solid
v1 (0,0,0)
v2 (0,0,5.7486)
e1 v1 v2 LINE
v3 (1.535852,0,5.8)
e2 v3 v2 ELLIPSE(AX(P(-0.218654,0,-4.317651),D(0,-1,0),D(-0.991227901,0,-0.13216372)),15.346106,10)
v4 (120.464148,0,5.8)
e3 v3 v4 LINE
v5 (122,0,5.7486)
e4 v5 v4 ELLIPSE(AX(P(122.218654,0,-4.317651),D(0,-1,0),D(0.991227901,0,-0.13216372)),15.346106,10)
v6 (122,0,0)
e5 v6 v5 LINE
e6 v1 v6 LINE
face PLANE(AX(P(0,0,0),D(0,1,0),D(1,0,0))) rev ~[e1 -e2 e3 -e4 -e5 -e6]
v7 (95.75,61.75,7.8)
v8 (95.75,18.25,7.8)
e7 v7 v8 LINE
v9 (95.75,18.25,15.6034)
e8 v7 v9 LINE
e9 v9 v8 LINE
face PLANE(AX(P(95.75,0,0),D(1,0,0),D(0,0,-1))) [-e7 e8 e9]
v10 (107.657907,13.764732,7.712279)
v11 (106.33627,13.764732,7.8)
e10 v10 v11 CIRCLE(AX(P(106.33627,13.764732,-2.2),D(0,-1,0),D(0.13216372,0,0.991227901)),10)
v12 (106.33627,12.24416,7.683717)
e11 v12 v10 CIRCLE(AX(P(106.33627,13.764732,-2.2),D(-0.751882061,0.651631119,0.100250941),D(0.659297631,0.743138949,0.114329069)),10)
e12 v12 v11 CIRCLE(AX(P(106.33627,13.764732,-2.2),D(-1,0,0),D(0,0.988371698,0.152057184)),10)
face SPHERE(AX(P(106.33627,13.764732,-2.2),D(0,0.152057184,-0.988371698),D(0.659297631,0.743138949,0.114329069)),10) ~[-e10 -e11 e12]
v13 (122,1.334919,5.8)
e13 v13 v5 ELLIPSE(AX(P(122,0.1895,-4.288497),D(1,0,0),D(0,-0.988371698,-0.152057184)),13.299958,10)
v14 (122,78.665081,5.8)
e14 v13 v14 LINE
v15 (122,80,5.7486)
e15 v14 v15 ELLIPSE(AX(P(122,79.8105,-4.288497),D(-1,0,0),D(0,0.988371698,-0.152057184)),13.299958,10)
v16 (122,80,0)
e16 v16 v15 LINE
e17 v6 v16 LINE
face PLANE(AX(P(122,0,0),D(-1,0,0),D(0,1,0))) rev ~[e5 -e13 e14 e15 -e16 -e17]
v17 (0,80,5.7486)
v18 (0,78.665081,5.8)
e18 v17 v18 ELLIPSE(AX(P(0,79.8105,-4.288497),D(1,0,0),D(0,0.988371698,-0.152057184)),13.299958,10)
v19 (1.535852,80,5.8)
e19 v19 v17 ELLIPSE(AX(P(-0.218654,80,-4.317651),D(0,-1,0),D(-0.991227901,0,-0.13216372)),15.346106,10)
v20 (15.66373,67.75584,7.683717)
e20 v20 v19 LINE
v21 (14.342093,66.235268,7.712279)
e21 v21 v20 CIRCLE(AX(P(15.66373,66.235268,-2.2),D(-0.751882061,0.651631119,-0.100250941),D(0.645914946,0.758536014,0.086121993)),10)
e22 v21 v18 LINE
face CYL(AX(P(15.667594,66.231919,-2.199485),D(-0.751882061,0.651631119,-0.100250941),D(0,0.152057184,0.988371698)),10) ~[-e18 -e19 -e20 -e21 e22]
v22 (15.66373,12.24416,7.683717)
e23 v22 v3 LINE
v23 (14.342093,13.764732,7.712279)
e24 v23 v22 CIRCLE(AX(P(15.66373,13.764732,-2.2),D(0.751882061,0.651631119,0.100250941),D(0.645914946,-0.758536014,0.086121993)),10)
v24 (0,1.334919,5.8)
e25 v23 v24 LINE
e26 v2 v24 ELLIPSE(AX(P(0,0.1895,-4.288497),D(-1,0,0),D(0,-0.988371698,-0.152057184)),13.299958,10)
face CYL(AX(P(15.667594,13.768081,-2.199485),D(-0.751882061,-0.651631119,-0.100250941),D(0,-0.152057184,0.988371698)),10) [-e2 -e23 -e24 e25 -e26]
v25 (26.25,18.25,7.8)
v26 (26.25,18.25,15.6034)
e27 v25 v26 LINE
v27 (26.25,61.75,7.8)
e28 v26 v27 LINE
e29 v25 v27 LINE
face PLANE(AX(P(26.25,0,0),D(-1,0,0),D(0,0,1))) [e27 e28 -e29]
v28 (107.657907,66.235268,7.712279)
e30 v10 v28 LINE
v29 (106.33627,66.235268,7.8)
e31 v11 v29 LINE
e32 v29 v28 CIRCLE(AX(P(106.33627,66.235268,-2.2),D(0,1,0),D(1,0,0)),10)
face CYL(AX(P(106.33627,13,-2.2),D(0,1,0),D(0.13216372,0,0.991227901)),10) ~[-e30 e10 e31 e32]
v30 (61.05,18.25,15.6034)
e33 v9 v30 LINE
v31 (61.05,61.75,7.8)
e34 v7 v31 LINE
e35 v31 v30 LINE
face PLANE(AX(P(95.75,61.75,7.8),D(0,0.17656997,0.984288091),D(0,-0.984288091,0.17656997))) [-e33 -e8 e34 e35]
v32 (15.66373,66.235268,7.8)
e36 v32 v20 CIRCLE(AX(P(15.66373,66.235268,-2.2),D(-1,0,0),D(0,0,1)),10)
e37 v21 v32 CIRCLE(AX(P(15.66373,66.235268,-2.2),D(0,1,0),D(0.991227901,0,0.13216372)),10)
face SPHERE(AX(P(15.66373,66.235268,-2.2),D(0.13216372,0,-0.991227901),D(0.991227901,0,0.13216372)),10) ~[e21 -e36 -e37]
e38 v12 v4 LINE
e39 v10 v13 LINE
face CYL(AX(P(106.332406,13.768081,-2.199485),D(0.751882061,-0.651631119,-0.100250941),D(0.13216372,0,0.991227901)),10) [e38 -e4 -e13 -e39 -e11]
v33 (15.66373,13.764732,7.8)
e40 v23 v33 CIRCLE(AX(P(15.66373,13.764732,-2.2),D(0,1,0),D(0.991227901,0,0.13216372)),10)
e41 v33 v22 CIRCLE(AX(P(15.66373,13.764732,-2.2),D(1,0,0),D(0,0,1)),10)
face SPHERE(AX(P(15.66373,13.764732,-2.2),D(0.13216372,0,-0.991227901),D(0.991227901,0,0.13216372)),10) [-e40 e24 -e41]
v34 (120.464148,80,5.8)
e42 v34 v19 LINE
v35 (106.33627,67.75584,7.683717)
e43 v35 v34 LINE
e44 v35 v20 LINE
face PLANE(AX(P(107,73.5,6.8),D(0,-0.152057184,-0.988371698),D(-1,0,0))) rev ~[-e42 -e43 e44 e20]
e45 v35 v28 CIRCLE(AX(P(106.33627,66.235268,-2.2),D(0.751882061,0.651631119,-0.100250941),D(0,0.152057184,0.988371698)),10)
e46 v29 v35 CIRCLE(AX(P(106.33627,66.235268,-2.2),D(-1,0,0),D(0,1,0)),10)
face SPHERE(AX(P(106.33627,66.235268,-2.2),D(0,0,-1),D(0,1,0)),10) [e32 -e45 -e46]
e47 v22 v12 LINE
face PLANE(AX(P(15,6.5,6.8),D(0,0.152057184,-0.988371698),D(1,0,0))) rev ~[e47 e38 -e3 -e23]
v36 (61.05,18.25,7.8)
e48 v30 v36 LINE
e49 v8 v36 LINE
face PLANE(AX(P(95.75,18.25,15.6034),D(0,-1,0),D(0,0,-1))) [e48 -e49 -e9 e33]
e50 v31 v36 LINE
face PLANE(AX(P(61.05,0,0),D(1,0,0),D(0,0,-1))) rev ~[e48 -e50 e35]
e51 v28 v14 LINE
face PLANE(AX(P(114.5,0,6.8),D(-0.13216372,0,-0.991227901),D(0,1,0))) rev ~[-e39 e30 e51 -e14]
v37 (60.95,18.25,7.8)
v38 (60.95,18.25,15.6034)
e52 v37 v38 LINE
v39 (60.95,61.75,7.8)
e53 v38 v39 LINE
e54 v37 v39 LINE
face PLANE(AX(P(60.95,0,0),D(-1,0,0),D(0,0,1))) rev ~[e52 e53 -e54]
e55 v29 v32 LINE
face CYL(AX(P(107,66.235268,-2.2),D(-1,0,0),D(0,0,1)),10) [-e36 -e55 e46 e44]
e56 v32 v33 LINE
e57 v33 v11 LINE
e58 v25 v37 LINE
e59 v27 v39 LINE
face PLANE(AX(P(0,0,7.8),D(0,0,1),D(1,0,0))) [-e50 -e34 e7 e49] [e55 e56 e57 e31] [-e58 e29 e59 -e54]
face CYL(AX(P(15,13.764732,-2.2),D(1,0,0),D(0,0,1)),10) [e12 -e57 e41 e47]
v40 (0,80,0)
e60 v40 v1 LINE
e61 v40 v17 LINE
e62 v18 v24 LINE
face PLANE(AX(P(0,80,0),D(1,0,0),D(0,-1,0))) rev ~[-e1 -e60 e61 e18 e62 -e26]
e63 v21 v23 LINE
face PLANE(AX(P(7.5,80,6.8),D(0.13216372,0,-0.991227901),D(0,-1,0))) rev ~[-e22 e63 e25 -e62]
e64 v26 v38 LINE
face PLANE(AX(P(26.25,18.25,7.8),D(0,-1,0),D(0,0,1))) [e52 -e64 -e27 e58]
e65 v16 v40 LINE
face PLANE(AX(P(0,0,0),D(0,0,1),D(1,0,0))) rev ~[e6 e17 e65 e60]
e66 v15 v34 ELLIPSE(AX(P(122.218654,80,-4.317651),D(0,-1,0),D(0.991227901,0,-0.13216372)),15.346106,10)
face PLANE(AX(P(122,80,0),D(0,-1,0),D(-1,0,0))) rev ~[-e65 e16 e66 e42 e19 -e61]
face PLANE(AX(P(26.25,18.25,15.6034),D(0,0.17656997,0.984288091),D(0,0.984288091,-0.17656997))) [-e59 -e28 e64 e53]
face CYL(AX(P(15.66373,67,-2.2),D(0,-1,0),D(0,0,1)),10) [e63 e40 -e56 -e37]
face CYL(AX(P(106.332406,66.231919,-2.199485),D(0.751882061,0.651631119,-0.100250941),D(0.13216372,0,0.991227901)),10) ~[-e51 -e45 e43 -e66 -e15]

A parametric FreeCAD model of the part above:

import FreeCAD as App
import Part
import Sketcher

V = App.Vector
Q = App.Units.Quantity


def edges_at(feature, points):
    """Names of the edges that pass closest to the given points."""
    edges = feature.Shape.Edges
    near = lambda p: min(range(len(edges)), key=lambda i: edges[i].distToShape(Part.Vertex(*p))[0])
    return sorted({f"Edge{near(p) + 1}" for p in points})


def add_polygon(sketch, points):
    """Adds a closed chain of lines whose ends are joined by coincident constraints."""
    first, n = sketch.GeometryCount, len(points)
    for a, b in zip(points, points[1:] + points[:1]):
        sketch.addGeometry(Part.LineSegment(App.Vector(*a, 0), App.Vector(*b, 0)), False)
    for i in range(n):
        sketch.addConstraint(Sketcher.Constraint("Coincident", first + i, 2, first + (i + 1) % n, 1))

doc = App.newDocument("Part")
body = doc.addObject("PartDesign::Body", "Body")

# Sketch on XY plane
sketch1 = body.newObject("Sketcher::SketchObject", "Sketch")
sketch1.AttachmentSupport = (doc.getObject("XY_Plane"), [""])
sketch1.MapMode = "FlatFace"
add_polygon(sketch1, [(0, 80), (0, 0), (122, 0), (122, 80)])  # lines 0-3
sketch1.addConstraint(Sketcher.Constraint("Vertical", 0))
sketch1.addConstraint(Sketcher.Constraint("Horizontal", 1))
sketch1.addConstraint(Sketcher.Constraint("Vertical", 2))
sketch1.addConstraint(Sketcher.Constraint("Horizontal", 3))
sketch1.addConstraint(Sketcher.Constraint("Coincident", 0, 2, -1, 1))
sketch1.addConstraint(Sketcher.Constraint("DistanceX", 1, 1, 1, 2, Q("122 mm")))
sketch1.addConstraint(Sketcher.Constraint("DistanceY", 0, 2, 0, 1, Q("80 mm")))
pad1 = body.newObject("PartDesign::Pad", "Pad")
pad1.Profile = sketch1
pad1.Length = 7.8

# Sketch on YZ plane
sketch2 = body.newObject("Sketcher::SketchObject", "Sketch001")
sketch2.AttachmentSupport = (doc.getObject("YZ_Plane"), [""])
sketch2.MapMode = "FlatFace"
sketch2.AttachmentOffset = App.Placement(V(0, 0, 95.75), App.Rotation())
add_polygon(sketch2, [(18, 8), (62, 8), (18, 16)])  # lines 0-2
sketch2.addConstraint(Sketcher.Constraint("Horizontal", 0))
sketch2.addConstraint(Sketcher.Constraint("Vertical", 2))
sketch2.addConstraint(Sketcher.Constraint("DistanceX", 0, 1, 0, 2, Q("43.5 mm")))
sketch2.addConstraint(Sketcher.Constraint("DistanceY", -1, 1, 0, 2, Q("7.8 mm")))
sketch2.addConstraint(Sketcher.Constraint("Angle", 1, Q("169.83 deg")))
sketch2.addConstraint(Sketcher.Constraint("DistanceX", -1, 1, 0, 2, Q("61.75 mm")))
pad2 = body.newObject("PartDesign::Pad", "Pad001")
pad2.Profile = sketch2
pad2.Length = 34.7
pad2.Reversed = True

# Sketch on YZ plane
sketch3 = body.newObject("Sketcher::SketchObject", "Sketch002")
sketch3.AttachmentSupport = (doc.getObject("YZ_Plane"), [""])
sketch3.MapMode = "FlatFace"
sketch3.AttachmentOffset = App.Placement(V(0, 0, 26.25), App.Rotation())
add_polygon(sketch3, [(62, 8), (18, 8), (18, 16)])  # lines 0-2
sketch3.addConstraint(Sketcher.Constraint("Horizontal", 0))
sketch3.addConstraint(Sketcher.Constraint("Vertical", 1))
sketch3.addConstraint(Sketcher.Constraint("DistanceX", 0, 2, 0, 1, Q("43.5 mm")))
sketch3.addConstraint(Sketcher.Constraint("DistanceY", -1, 1, 0, 2, Q("7.8 mm")))
sketch3.addConstraint(Sketcher.Constraint("Angle", 2, Q("-10.17 deg")))
sketch3.addConstraint(Sketcher.Constraint("DistanceX", -1, 1, 0, 2, Q("18.25 mm")))
pad3 = body.newObject("PartDesign::Pad", "Pad002")
pad3.Profile = sketch3
pad3.Length = 34.7
doc.recompute()

chamfer = body.newObject("PartDesign::Chamfer", "Chamfer")
chamfer.Base = (pad3, edges_at(pad3, [(122, 40, 7.8)]))
chamfer.ChamferType = "Two distances"
chamfer.Size = 15
chamfer.Size2 = 2
doc.recompute()

chamfer2 = body.newObject("PartDesign::Chamfer", "Chamfer001")
chamfer2.Base = (chamfer, edges_at(chamfer, [(0, 40, 7.8)]))
chamfer2.ChamferType = "Two distances"
chamfer2.Size = 15
chamfer2.Size2 = 2
doc.recompute()

chamfer3 = body.newObject("PartDesign::Chamfer", "Chamfer002")
chamfer3.Base = (chamfer2, edges_at(chamfer2, [(61, 80, 7.8)]))
chamfer3.ChamferType = "Two distances"
chamfer3.Size = 13
chamfer3.Size2 = 2
chamfer3.FlipDirection = True
doc.recompute()

chamfer4 = body.newObject("PartDesign::Chamfer", "Chamfer003")
chamfer4.Base = (chamfer3, edges_at(chamfer3, [(61, 0, 7.8)]))
chamfer4.ChamferType = "Two distances"
chamfer4.Size = 13
chamfer4.Size2 = 2
doc.recompute()

fillet = body.newObject("PartDesign::Fillet", "Fillet")
fillet.Base = (chamfer4, edges_at(chamfer4, [
    (114.5, 73.5, 6.8),
    (61, 67, 7.8),
    (107, 40, 7.8),
    (114.5, 6.5, 6.8),
    (61, 13, 7.8),
    (15, 40, 7.8),
    (7.5, 6.5, 6.8),
    (7.5, 73.5, 6.8),
]))
fillet.Radius = 10

doc.recompute()
